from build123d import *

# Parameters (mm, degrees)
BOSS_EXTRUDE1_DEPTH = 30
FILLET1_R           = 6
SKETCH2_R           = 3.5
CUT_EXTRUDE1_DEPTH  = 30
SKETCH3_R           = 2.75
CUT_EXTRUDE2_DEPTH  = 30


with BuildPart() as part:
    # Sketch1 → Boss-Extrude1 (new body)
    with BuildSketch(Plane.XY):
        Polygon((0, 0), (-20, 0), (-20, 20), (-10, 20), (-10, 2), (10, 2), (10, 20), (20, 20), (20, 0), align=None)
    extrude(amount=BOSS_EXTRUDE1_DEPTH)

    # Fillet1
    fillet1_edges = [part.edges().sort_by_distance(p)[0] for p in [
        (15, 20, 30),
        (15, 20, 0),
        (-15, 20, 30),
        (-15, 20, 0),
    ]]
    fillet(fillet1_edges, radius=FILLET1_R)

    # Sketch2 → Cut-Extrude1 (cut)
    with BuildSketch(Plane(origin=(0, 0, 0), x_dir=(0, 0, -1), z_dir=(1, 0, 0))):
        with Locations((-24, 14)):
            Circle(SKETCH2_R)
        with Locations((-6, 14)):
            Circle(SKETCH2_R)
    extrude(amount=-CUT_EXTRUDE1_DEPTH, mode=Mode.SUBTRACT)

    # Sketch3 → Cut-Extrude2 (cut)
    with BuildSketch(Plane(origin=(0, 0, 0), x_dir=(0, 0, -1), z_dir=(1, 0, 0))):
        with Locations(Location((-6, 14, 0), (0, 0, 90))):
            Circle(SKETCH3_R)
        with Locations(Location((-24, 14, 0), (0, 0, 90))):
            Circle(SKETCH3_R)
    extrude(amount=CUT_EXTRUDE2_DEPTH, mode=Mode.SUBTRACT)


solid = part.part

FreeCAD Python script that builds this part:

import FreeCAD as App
import Part
import Sketcher
from FreeCAD import Vector
Q = App.Units.Quantity


def edges_at(feature, points):
    """Names of the edges that pass closest to the given points."""
    edges = feature.Shape.Edges
    near = lambda p: min(range(len(edges)), key=lambda i: edges[i].distToShape(Part.Vertex(*p))[0])
    return sorted({f"Edge{near(p) + 1}" for p in points})


def add_polygon(sketch, points):
    """Adds a closed chain of lines whose ends are joined by coincident constraints."""
    first, n = sketch.GeometryCount, len(points)
    for a, b in zip(points, points[1:] + points[:1]):
        sketch.addGeometry(Part.LineSegment(App.Vector(*a, 0), App.Vector(*b, 0)), False)
    for i in range(n):
        sketch.addConstraint(Sketcher.Constraint("Coincident", first + i, 2, first + (i + 1) % n, 1))

doc = App.newDocument("Part")
body = doc.addObject("PartDesign::Body", "Body")

sketch1 = body.newObject("Sketcher::SketchObject", "Sketch")
sketch1.AttachmentSupport = (doc.getObject("XY_Plane"), [""])
sketch1.MapMode = "FlatFace"
add_polygon(sketch1, [(-20, 0), (20, 0), (20, 20), (10, 20), (10, 2), (-10, 2), (-10, 20), (-20, 20)])
sketch1.addConstraint(Sketcher.Constraint("Horizontal", 0))
sketch1.addConstraint(Sketcher.Constraint("Vertical", 1))
sketch1.addConstraint(Sketcher.Constraint("Horizontal", 2))
sketch1.addConstraint(Sketcher.Constraint("Vertical", 3))
sketch1.addConstraint(Sketcher.Constraint("Horizontal", 4))
sketch1.addConstraint(Sketcher.Constraint("Vertical", 5))
sketch1.addConstraint(Sketcher.Constraint("Horizontal", 6))
sketch1.addConstraint(Sketcher.Constraint("Vertical", 7))
sketch1.addConstraint(Sketcher.Constraint("Symmetric", 0, 2, 7, 2, -1, 1))
sketch1.addConstraint(Sketcher.Constraint("Symmetric", 2, 2, 5, 2, -2))
sketch1.addConstraint(Sketcher.Constraint("Equal", 4, 1))
sketch1.addConstraint(Sketcher.Constraint("DistanceX", 0, 1, 0, 2, Q("40 mm")))
sketch1.addConstraint(Sketcher.Constraint("DistanceX", 2, 2, 2, 1, Q("10 mm")))
sketch1.addConstraint(Sketcher.Constraint("DistanceY", 3, 2, 3, 1, Q("18 mm")))
pad1 = body.newObject("PartDesign::Pad", "Pad")
pad1.Profile = sketch1
pad1.Length = 30
doc.recompute()

fillet = body.newObject("PartDesign::Fillet", "Fillet")
fillet.Base = (pad1, edges_at(pad1, [
    (15, 20, 30),
    (15, 20, 0),
    (-15, 20, 30),
    (-15, 20, 0),
]))
fillet.Radius = 6

sketch2 = body.newObject("Sketcher::SketchObject", "Sketch001")
sketch2.AttachmentSupport = (doc.getObject("YZ_Plane"), [""])
sketch2.MapMode = "FlatFace"
sketch2.addGeometry(Part.Circle(Vector(14, 24, 0), Vector(0, 0, 1), 3.5), False)
sketch2.addGeometry(Part.Circle(Vector(14, 6, 0), Vector(0, 0, 1), 3.5), False)
sketch2.addConstraint(Sketcher.Constraint("Equal", 0, 1))
sketch2.addConstraint(Sketcher.Constraint("Vertical", 0, 3, 1, 3))
sketch2.addConstraint(Sketcher.Constraint("Diameter", 0, Q("7 mm")))
sketch2.addConstraint(Sketcher.Constraint("DistanceX", -1, 1, 0, 3, Q("14 mm")))
sketch2.addConstraint(Sketcher.Constraint("DistanceY", -1, 1, 0, 3, Q("24 mm")))
sketch2.addConstraint(Sketcher.Constraint("DistanceY", -1, 1, 1, 3, Q("6 mm")))
pocket1 = body.newObject("PartDesign::Pocket", "Pocket")
pocket1.Profile = sketch2
pocket1.Length = 30

sketch3 = body.newObject("Sketcher::SketchObject", "Sketch002")
sketch3.AttachmentSupport = (doc.getObject("YZ_Plane"), [""])
sketch3.MapMode = "FlatFace"
sketch3.addGeometry(Part.Circle(Vector(14, 6, 0), Vector(0, 0, 1), 2.8), False)
sketch3.addGeometry(Part.Circle(Vector(14, 24, 0), Vector(0, 0, 1), 2.8), False)
sketch3.addConstraint(Sketcher.Constraint("Equal", 0, 1))
sketch3.addConstraint(Sketcher.Constraint("Vertical", 0, 3, 1, 3))
sketch3.addConstraint(Sketcher.Constraint("Diameter", 0, Q("5.5 mm")))
sketch3.addConstraint(Sketcher.Constraint("DistanceX", -1, 1, 0, 3, Q("14 mm")))
sketch3.addConstraint(Sketcher.Constraint("DistanceY", -1, 1, 0, 3, Q("6 mm")))
sketch3.addConstraint(Sketcher.Constraint("DistanceY", -1, 1, 1, 3, Q("24 mm")))
pocket2 = body.newObject("PartDesign::Pocket", "Pocket001")
pocket2.Profile = sketch3
pocket2.Length = 30
pocket2.Reversed = True

doc.recompute()
